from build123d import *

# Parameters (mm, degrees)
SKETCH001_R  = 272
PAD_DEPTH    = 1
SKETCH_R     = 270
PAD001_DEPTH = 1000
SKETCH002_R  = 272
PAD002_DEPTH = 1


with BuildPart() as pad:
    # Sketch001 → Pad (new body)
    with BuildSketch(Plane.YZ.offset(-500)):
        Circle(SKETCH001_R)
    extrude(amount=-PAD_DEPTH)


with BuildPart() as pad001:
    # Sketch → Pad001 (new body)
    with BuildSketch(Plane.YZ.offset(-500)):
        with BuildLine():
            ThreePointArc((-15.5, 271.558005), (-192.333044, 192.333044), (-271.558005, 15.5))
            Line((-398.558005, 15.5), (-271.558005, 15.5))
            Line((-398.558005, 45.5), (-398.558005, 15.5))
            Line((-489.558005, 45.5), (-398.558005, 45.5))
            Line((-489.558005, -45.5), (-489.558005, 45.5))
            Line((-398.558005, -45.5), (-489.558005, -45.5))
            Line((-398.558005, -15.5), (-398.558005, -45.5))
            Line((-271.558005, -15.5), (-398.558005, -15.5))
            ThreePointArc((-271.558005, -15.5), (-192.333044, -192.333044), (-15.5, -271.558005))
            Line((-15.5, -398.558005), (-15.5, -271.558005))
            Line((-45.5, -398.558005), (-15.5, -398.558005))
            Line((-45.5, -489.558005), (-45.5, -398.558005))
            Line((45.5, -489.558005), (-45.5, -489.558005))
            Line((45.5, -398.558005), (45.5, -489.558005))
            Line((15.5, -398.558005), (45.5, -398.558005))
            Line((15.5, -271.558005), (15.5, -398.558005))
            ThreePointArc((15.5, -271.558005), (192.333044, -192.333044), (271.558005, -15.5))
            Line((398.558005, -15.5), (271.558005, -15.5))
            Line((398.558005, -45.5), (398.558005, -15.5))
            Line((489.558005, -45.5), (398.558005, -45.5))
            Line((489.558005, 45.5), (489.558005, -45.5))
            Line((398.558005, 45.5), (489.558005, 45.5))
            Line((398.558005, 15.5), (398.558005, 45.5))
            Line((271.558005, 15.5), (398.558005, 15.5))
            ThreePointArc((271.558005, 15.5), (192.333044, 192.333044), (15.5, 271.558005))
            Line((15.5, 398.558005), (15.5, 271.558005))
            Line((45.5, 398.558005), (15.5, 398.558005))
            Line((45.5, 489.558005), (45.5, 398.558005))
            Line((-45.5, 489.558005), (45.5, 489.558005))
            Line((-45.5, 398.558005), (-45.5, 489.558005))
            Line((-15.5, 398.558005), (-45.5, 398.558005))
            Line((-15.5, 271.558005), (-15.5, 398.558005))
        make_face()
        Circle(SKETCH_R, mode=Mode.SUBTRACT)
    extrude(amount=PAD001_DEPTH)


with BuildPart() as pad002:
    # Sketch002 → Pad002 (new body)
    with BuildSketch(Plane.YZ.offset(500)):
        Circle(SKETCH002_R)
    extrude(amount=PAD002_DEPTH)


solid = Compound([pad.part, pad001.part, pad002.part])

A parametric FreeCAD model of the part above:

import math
import FreeCAD as App
import Part
import Sketcher
from FreeCAD import Vector

doc = App.newDocument("Part")
body = doc.addObject("PartDesign::Body", "Body")

sketch1 = body.newObject("Sketcher::SketchObject", "Sketch")
sketch1.AttachmentSupport = (doc.getObject("YZ_Plane"), [""])
sketch1.MapMode = "FlatFace"
sketch1.AttachmentOffset = App.Placement(Vector(0, 0, -500), App.Rotation())
sketch1.addGeometry(Part.Circle(Vector(0, 0, 0), Vector(0, 0, 1), 272), False)
sketch1.addConstraint([
    Sketcher.Constraint("Coincident", 0, 3, -1, 1),
    Sketcher.Constraint("Diameter", 0, 544.0),
])
pad1 = body.newObject("PartDesign::Pad", "Pad")
pad1.Profile = sketch1
pad1.Length = 1
pad1.Reversed = True
body2 = doc.addObject("PartDesign::Body", "Body001")

sketch2 = body2.newObject("Sketcher::SketchObject", "Sketch001")
sketch2.AttachmentSupport = (doc.getObject("YZ_Plane001"), [""])
sketch2.MapMode = "FlatFace"
sketch2.AttachmentOffset = App.Placement(Vector(0, 0, -500), App.Rotation())
sketch2.addGeometry([
    Part.ArcOfCircle(Part.Circle(Vector(0, 0, 0), Vector(0, 0, 1), 272), math.radians(93), math.radians(177)),
    Part.LineSegment(Vector(-272, 16, 0), Vector(-399, 16, 0)),
    Part.LineSegment(Vector(-399, 16, 0), Vector(-399, 46, 0)),
    Part.LineSegment(Vector(-399, 46, 0), Vector(-490, 46, 0)),
    Part.LineSegment(Vector(-490, 46, 0), Vector(-490, -46, 0)),
    Part.LineSegment(Vector(-490, -46, 0), Vector(-399, -46, 0)),
    Part.LineSegment(Vector(-399, -46, 0), Vector(-399, -16, 0)),
    Part.LineSegment(Vector(-399, -16, 0), Vector(-272, -16, 0)),
    Part.ArcOfCircle(Part.Circle(Vector(0, 0, 0), Vector(0, 0, 1), 272), math.radians(-177), math.radians(-93)),
    Part.LineSegment(Vector(-16, -272, 0), Vector(-16, -399, 0)),
    Part.LineSegment(Vector(-16, -399, 0), Vector(-46, -399, 0)),
    Part.LineSegment(Vector(-46, -399, 0), Vector(-46, -490, 0)),
    Part.LineSegment(Vector(-46, -490, 0), Vector(46, -490, 0)),
    Part.LineSegment(Vector(46, -490, 0), Vector(46, -399, 0)),
    Part.LineSegment(Vector(46, -399, 0), Vector(16, -399, 0)),
    Part.LineSegment(Vector(16, -399, 0), Vector(16, -272, 0)),
    Part.ArcOfCircle(Part.Circle(Vector(0, 0, 0), Vector(0, 0, 1), 272), math.radians(-87), math.radians(-3)),
    Part.LineSegment(Vector(272, -16, 0), Vector(399, -16, 0)),
    Part.LineSegment(Vector(399, -16, 0), Vector(399, -46, 0)),
    Part.LineSegment(Vector(399, -46, 0), Vector(490, -46, 0)),
    Part.LineSegment(Vector(490, -46, 0), Vector(490, 46, 0)),
    Part.LineSegment(Vector(490, 46, 0), Vector(399, 46, 0)),
    Part.LineSegment(Vector(399, 46, 0), Vector(399, 16, 0)),
    Part.LineSegment(Vector(399, 16, 0), Vector(272, 16, 0)),
    Part.ArcOfCircle(Part.Circle(Vector(0, 0, 0), Vector(0, 0, 1), 272), math.radians(3), math.radians(87)),
    Part.LineSegment(Vector(16, 272, 0), Vector(16, 399, 0)),
    Part.LineSegment(Vector(16, 399, 0), Vector(46, 399, 0)),
    Part.LineSegment(Vector(46, 399, 0), Vector(46, 490, 0)),
    Part.LineSegment(Vector(46, 490, 0), Vector(-46, 490, 0)),
    Part.LineSegment(Vector(-46, 490, 0), Vector(-46, 399, 0)),
    Part.LineSegment(Vector(-46, 399, 0), Vector(-16, 399, 0)),
    Part.LineSegment(Vector(-16, 399, 0), Vector(-16, 272, 0)),
    Part.Circle(Vector(0, 0, 0), Vector(0, 0, 1), 270),
], False)
sketch2.addConstraint([
    Sketcher.Constraint("Coincident", 0, 2, 1, 1),
    Sketcher.Constraint("Coincident", 1, 2, 2, 1),
    Sketcher.Constraint("Coincident", 2, 2, 3, 1),
    Sketcher.Constraint("Coincident", 3, 2, 4, 1),
    Sketcher.Constraint("Coincident", 4, 2, 5, 1),
    Sketcher.Constraint("Coincident", 5, 2, 6, 1),
    Sketcher.Constraint("Coincident", 6, 2, 7, 1),
    Sketcher.Constraint("Coincident", 7, 2, 8, 1),
    Sketcher.Constraint("Coincident", 8, 2, 9, 1),
    Sketcher.Constraint("Coincident", 9, 2, 10, 1),
    Sketcher.Constraint("Coincident", 10, 2, 11, 1),
    Sketcher.Constraint("Coincident", 11, 2, 12, 1),
    Sketcher.Constraint("Coincident", 12, 2, 13, 1),
    Sketcher.Constraint("Coincident", 13, 2, 14, 1),
    Sketcher.Constraint("Coincident", 14, 2, 15, 1),
    Sketcher.Constraint("Coincident", 15, 2, 16, 1),
    Sketcher.Constraint("Coincident", 16, 2, 17, 1),
    Sketcher.Constraint("Coincident", 17, 2, 18, 1),
    Sketcher.Constraint("Coincident", 18, 2, 19, 1),
    Sketcher.Constraint("Coincident", 19, 2, 20, 1),
    Sketcher.Constraint("Coincident", 20, 2, 21, 1),
    Sketcher.Constraint("Coincident", 21, 2, 22, 1),
    Sketcher.Constraint("Coincident", 22, 2, 23, 1),
    Sketcher.Constraint("Coincident", 23, 2, 24, 1),
    Sketcher.Constraint("Coincident", 24, 2, 25, 1),
    Sketcher.Constraint("Coincident", 25, 2, 26, 1),
    Sketcher.Constraint("Coincident", 26, 2, 27, 1),
    Sketcher.Constraint("Coincident", 27, 2, 28, 1),
    Sketcher.Constraint("Coincident", 28, 2, 29, 1),
    Sketcher.Constraint("Coincident", 29, 2, 30, 1),
    Sketcher.Constraint("Coincident", 30, 2, 31, 1),
    Sketcher.Constraint("Coincident", 31, 2, 0, 1),
    Sketcher.Constraint("Horizontal", 1),
    Sketcher.Constraint("Vertical", 2),
    Sketcher.Constraint("Horizontal", 3),
    Sketcher.Constraint("Vertical", 4),
    Sketcher.Constraint("Horizontal", 5),
    Sketcher.Constraint("Vertical", 6),
    Sketcher.Constraint("Horizontal", 7),
    Sketcher.Constraint("Vertical", 9),
    Sketcher.Constraint("Horizontal", 10),
    Sketcher.Constraint("Vertical", 11),
    Sketcher.Constraint("Horizontal", 12),
    Sketcher.Constraint("Vertical", 13),
    Sketcher.Constraint("Horizontal", 14),
    Sketcher.Constraint("Vertical", 15),
    Sketcher.Constraint("Horizontal", 17),
    Sketcher.Constraint("Vertical", 18),
    Sketcher.Constraint("Horizontal", 19),
    Sketcher.Constraint("Vertical", 20),
    Sketcher.Constraint("Horizontal", 21),
    Sketcher.Constraint("Vertical", 22),
    Sketcher.Constraint("Horizontal", 23),
    Sketcher.Constraint("Vertical", 25),
    Sketcher.Constraint("Horizontal", 26),
    Sketcher.Constraint("Vertical", 27),
    Sketcher.Constraint("Horizontal", 28),
    Sketcher.Constraint("Vertical", 29),
    Sketcher.Constraint("Horizontal", 30),
    Sketcher.Constraint("Vertical", 31),
    Sketcher.Constraint("Coincident", 0, 3, -1, 1),
    Sketcher.Constraint("Coincident", 8, 3, -1, 1),
    Sketcher.Constraint("Coincident", 16, 3, -1, 1),
    Sketcher.Constraint("Coincident", 24, 3, -1, 1),
    Sketcher.Constraint("Coincident", 32, 3, -1, 1),
    Sketcher.Constraint("Equal", 0, 8),
    Sketcher.Constraint("Equal", 8, 16),
    Sketcher.Constraint("Equal", 16, 24),
    Sketcher.Constraint("Symmetric", 1, 2, 17, 2, -1, 1),
    Sketcher.Constraint("Symmetric", 3, 2, 19, 2, -1, 1),
    Sketcher.Constraint("Symmetric", 5, 2, 21, 2, -1, 1),
    Sketcher.Constraint("Symmetric", 9, 2, 25, 2, -1, 1),
    Sketcher.Constraint("Symmetric", 11, 2, 27, 2, -1, 1),
    Sketcher.Constraint("Symmetric", 13, 2, 29, 2, -1, 1),
    Sketcher.Constraint("Symmetric", 10, 2, 13, 2, -2),
    Sketcher.Constraint("Symmetric", 6, 2, 17, 2, -2),
    Sketcher.Constraint("Horizontal", 8, 2, 15, 2),
    Sketcher.Constraint("Horizontal", 5, 2, 18, 2),
    Sketcher.Constraint("Horizontal", 1, 2, 22, 2),
    Sketcher.Constraint("Horizontal", 24, 2, 31, 2),
    Sketcher.Constraint("Equal", 5, 12),
    Sketcher.Constraint("Equal", 30, 2),
    Sketcher.Constraint("Equal", 28, 4),
    Sketcher.Constraint("Equal", 23, 9),
    Sketcher.Constraint("Equal", 4, 11),
    Sketcher.Constraint("Diameter", 32, 540.0),
    Sketcher.Constraint("DistanceX", 1, 2, 1, 1, 127.0),
    Sketcher.Constraint("DistanceX", 3, 2, 3, 1, 91.0),
    Sketcher.Constraint("DistanceX", 10, 2, 10, 1, 30.0),
    Sketcher.Constraint("Radius", 0, 272.000003),
])
pad2 = body2.newObject("PartDesign::Pad", "Pad001")
pad2.Profile = sketch2
pad2.Length = 1000
body3 = doc.addObject("PartDesign::Body", "Body002")

sketch3 = body3.newObject("Sketcher::SketchObject", "Sketch002")
sketch3.AttachmentSupport = (doc.getObject("YZ_Plane002"), [""])
sketch3.MapMode = "FlatFace"
sketch3.AttachmentOffset = App.Placement(Vector(0, 0, 500), App.Rotation())
sketch3.addGeometry(Part.Circle(Vector(0, 0, 0), Vector(0, 0, 1), 272), False)
sketch3.addConstraint([
    Sketcher.Constraint("Coincident", 0, 3, -1, 1),
    Sketcher.Constraint("Diameter", 0, 544.0),
])
pad3 = body3.newObject("PartDesign::Pad", "Pad002")
pad3.Profile = sketch3
pad3.Length = 1

doc.recompute()
